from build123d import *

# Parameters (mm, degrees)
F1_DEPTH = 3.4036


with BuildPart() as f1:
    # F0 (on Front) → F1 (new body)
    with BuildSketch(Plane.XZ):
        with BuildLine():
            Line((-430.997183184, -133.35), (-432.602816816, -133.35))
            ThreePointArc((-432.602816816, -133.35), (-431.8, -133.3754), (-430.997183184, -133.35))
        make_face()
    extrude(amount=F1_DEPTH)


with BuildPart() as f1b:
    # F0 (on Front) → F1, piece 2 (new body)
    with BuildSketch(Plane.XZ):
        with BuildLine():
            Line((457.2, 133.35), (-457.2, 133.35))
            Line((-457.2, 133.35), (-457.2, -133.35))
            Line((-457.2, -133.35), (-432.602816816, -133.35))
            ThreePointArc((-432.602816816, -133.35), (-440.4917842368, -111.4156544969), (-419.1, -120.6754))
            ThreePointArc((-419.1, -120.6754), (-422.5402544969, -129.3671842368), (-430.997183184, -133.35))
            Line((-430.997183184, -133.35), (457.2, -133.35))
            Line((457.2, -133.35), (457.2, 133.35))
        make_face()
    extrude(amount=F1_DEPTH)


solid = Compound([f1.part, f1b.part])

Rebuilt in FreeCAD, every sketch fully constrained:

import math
import FreeCAD as App
import Part
import Sketcher
from FreeCAD import Vector
Q = App.Units.Quantity

doc = App.newDocument("Part")
body = doc.addObject("PartDesign::Body", "Body")

# Sketch on XZ plane
sketch1 = body.newObject("Sketcher::SketchObject", "Sketch")
sketch1.AttachmentSupport = (doc.getObject("XZ_Plane"), [""])
sketch1.MapMode = "FlatFace"
sketch1.addGeometry([
    Part.LineSegment(Vector(-430.997183, -133.35, 0), Vector(-432.602817, -133.35, 0)),
    Part.ArcOfCircle(Part.Circle(Vector(-431.8, -120.6754, 0), Vector(0, 0, 1), 12.7), math.radians(-93.624307), math.radians(-86.375693)),
], False)
sketch1.addConstraint([
    Sketcher.Constraint("Coincident", 0, 1, 1, 2),
    Sketcher.Constraint("Coincident", 1, 1, 0, 2),
    Sketcher.Constraint("Horizontal", 0),
    Sketcher.Constraint("Radius", 1, Q("0.5 in")),
    Sketcher.Constraint("DistanceX", 1, 3, -1, 1, Q("17 in")),
    Sketcher.Constraint("DistanceY", 0, 1, -1, 1, Q("5.25 in")),
    Sketcher.Constraint("DistanceY", 1, 3, -1, 1, Q("4.751 in")),
])
pad1 = body.newObject("PartDesign::Pad", "Pad")
pad1.Profile = sketch1
pad1.Length = Q("0.134 in")
body2 = doc.addObject("PartDesign::Body", "Body001")

# Sketch on XZ plane
sketch2 = body2.newObject("Sketcher::SketchObject", "Sketch001")
sketch2.AttachmentSupport = (doc.getObject("XZ_Plane001"), [""])
sketch2.MapMode = "FlatFace"
sketch2.addGeometry([
    Part.LineSegment(Vector(457.2, 133.35, 0), Vector(-457.2, 133.35, 0)),  # 0
    Part.LineSegment(Vector(-457.2, 133.35, 0), Vector(-457.2, -133.35, 0)),  # 1
    Part.LineSegment(Vector(-457.2, -133.35, 0), Vector(-432.602817, -133.35, 0)),  # 2
    Part.ArcOfCircle(Part.Circle(Vector(-431.8, -120.6754, 0), Vector(0, 0, 1), 12.7), math.radians(0), math.radians(266.375693)),  # 3
    Part.ArcOfCircle(Part.Circle(Vector(-431.8, -120.6754, 0), Vector(0, 0, 1), 12.7), math.radians(-86.375693), math.radians(0)),  # 4
    Part.LineSegment(Vector(-430.997183, -133.35, 0), Vector(457.2, -133.35, 0)),  # 5
    Part.LineSegment(Vector(457.2, -133.35, 0), Vector(457.2, 133.35, 0)),  # 6
], False)
sketch2.addConstraint([
    Sketcher.Constraint("Coincident", 0, 2, 1, 1),
    Sketcher.Constraint("Coincident", 1, 2, 2, 1),
    Sketcher.Constraint("Coincident", 2, 2, 3, 2),
    Sketcher.Constraint("Tangent", 3, 1, 4, 2),
    Sketcher.Constraint("Coincident", 4, 1, 5, 1),
    Sketcher.Constraint("Coincident", 5, 2, 6, 1),
    Sketcher.Constraint("Coincident", 6, 2, 0, 1),
    Sketcher.Constraint("Horizontal", 0),
    Sketcher.Constraint("Vertical", 1),
    Sketcher.Constraint("Horizontal", 2),
    Sketcher.Constraint("Horizontal", 5),
    Sketcher.Constraint("Vertical", 6),
    Sketcher.Constraint("Equal", 3, 4),
    Sketcher.Constraint("Symmetric", 0, 2, 5, 2, -1, 1),
    Sketcher.Constraint("Horizontal", 4, 3, 3, 1),
    Sketcher.Constraint("Horizontal", 2, 2, 4, 1),
    Sketcher.Constraint("Radius", 3, Q("0.5 in")),
    Sketcher.Constraint("DistanceX", 0, 2, 0, 1, Q("36 in")),
    Sketcher.Constraint("DistanceY", 1, 2, 1, 1, Q("10.5 in")),
    Sketcher.Constraint("DistanceX", 3, 3, -1, 1, Q("17 in")),
    Sketcher.Constraint("DistanceY", 3, 3, -1, 1, Q("4.751 in")),
])
pad2 = body2.newObject("PartDesign::Pad", "Pad001")
pad2.Profile = sketch2
pad2.Length = Q("0.134 in")

doc.recompute()
